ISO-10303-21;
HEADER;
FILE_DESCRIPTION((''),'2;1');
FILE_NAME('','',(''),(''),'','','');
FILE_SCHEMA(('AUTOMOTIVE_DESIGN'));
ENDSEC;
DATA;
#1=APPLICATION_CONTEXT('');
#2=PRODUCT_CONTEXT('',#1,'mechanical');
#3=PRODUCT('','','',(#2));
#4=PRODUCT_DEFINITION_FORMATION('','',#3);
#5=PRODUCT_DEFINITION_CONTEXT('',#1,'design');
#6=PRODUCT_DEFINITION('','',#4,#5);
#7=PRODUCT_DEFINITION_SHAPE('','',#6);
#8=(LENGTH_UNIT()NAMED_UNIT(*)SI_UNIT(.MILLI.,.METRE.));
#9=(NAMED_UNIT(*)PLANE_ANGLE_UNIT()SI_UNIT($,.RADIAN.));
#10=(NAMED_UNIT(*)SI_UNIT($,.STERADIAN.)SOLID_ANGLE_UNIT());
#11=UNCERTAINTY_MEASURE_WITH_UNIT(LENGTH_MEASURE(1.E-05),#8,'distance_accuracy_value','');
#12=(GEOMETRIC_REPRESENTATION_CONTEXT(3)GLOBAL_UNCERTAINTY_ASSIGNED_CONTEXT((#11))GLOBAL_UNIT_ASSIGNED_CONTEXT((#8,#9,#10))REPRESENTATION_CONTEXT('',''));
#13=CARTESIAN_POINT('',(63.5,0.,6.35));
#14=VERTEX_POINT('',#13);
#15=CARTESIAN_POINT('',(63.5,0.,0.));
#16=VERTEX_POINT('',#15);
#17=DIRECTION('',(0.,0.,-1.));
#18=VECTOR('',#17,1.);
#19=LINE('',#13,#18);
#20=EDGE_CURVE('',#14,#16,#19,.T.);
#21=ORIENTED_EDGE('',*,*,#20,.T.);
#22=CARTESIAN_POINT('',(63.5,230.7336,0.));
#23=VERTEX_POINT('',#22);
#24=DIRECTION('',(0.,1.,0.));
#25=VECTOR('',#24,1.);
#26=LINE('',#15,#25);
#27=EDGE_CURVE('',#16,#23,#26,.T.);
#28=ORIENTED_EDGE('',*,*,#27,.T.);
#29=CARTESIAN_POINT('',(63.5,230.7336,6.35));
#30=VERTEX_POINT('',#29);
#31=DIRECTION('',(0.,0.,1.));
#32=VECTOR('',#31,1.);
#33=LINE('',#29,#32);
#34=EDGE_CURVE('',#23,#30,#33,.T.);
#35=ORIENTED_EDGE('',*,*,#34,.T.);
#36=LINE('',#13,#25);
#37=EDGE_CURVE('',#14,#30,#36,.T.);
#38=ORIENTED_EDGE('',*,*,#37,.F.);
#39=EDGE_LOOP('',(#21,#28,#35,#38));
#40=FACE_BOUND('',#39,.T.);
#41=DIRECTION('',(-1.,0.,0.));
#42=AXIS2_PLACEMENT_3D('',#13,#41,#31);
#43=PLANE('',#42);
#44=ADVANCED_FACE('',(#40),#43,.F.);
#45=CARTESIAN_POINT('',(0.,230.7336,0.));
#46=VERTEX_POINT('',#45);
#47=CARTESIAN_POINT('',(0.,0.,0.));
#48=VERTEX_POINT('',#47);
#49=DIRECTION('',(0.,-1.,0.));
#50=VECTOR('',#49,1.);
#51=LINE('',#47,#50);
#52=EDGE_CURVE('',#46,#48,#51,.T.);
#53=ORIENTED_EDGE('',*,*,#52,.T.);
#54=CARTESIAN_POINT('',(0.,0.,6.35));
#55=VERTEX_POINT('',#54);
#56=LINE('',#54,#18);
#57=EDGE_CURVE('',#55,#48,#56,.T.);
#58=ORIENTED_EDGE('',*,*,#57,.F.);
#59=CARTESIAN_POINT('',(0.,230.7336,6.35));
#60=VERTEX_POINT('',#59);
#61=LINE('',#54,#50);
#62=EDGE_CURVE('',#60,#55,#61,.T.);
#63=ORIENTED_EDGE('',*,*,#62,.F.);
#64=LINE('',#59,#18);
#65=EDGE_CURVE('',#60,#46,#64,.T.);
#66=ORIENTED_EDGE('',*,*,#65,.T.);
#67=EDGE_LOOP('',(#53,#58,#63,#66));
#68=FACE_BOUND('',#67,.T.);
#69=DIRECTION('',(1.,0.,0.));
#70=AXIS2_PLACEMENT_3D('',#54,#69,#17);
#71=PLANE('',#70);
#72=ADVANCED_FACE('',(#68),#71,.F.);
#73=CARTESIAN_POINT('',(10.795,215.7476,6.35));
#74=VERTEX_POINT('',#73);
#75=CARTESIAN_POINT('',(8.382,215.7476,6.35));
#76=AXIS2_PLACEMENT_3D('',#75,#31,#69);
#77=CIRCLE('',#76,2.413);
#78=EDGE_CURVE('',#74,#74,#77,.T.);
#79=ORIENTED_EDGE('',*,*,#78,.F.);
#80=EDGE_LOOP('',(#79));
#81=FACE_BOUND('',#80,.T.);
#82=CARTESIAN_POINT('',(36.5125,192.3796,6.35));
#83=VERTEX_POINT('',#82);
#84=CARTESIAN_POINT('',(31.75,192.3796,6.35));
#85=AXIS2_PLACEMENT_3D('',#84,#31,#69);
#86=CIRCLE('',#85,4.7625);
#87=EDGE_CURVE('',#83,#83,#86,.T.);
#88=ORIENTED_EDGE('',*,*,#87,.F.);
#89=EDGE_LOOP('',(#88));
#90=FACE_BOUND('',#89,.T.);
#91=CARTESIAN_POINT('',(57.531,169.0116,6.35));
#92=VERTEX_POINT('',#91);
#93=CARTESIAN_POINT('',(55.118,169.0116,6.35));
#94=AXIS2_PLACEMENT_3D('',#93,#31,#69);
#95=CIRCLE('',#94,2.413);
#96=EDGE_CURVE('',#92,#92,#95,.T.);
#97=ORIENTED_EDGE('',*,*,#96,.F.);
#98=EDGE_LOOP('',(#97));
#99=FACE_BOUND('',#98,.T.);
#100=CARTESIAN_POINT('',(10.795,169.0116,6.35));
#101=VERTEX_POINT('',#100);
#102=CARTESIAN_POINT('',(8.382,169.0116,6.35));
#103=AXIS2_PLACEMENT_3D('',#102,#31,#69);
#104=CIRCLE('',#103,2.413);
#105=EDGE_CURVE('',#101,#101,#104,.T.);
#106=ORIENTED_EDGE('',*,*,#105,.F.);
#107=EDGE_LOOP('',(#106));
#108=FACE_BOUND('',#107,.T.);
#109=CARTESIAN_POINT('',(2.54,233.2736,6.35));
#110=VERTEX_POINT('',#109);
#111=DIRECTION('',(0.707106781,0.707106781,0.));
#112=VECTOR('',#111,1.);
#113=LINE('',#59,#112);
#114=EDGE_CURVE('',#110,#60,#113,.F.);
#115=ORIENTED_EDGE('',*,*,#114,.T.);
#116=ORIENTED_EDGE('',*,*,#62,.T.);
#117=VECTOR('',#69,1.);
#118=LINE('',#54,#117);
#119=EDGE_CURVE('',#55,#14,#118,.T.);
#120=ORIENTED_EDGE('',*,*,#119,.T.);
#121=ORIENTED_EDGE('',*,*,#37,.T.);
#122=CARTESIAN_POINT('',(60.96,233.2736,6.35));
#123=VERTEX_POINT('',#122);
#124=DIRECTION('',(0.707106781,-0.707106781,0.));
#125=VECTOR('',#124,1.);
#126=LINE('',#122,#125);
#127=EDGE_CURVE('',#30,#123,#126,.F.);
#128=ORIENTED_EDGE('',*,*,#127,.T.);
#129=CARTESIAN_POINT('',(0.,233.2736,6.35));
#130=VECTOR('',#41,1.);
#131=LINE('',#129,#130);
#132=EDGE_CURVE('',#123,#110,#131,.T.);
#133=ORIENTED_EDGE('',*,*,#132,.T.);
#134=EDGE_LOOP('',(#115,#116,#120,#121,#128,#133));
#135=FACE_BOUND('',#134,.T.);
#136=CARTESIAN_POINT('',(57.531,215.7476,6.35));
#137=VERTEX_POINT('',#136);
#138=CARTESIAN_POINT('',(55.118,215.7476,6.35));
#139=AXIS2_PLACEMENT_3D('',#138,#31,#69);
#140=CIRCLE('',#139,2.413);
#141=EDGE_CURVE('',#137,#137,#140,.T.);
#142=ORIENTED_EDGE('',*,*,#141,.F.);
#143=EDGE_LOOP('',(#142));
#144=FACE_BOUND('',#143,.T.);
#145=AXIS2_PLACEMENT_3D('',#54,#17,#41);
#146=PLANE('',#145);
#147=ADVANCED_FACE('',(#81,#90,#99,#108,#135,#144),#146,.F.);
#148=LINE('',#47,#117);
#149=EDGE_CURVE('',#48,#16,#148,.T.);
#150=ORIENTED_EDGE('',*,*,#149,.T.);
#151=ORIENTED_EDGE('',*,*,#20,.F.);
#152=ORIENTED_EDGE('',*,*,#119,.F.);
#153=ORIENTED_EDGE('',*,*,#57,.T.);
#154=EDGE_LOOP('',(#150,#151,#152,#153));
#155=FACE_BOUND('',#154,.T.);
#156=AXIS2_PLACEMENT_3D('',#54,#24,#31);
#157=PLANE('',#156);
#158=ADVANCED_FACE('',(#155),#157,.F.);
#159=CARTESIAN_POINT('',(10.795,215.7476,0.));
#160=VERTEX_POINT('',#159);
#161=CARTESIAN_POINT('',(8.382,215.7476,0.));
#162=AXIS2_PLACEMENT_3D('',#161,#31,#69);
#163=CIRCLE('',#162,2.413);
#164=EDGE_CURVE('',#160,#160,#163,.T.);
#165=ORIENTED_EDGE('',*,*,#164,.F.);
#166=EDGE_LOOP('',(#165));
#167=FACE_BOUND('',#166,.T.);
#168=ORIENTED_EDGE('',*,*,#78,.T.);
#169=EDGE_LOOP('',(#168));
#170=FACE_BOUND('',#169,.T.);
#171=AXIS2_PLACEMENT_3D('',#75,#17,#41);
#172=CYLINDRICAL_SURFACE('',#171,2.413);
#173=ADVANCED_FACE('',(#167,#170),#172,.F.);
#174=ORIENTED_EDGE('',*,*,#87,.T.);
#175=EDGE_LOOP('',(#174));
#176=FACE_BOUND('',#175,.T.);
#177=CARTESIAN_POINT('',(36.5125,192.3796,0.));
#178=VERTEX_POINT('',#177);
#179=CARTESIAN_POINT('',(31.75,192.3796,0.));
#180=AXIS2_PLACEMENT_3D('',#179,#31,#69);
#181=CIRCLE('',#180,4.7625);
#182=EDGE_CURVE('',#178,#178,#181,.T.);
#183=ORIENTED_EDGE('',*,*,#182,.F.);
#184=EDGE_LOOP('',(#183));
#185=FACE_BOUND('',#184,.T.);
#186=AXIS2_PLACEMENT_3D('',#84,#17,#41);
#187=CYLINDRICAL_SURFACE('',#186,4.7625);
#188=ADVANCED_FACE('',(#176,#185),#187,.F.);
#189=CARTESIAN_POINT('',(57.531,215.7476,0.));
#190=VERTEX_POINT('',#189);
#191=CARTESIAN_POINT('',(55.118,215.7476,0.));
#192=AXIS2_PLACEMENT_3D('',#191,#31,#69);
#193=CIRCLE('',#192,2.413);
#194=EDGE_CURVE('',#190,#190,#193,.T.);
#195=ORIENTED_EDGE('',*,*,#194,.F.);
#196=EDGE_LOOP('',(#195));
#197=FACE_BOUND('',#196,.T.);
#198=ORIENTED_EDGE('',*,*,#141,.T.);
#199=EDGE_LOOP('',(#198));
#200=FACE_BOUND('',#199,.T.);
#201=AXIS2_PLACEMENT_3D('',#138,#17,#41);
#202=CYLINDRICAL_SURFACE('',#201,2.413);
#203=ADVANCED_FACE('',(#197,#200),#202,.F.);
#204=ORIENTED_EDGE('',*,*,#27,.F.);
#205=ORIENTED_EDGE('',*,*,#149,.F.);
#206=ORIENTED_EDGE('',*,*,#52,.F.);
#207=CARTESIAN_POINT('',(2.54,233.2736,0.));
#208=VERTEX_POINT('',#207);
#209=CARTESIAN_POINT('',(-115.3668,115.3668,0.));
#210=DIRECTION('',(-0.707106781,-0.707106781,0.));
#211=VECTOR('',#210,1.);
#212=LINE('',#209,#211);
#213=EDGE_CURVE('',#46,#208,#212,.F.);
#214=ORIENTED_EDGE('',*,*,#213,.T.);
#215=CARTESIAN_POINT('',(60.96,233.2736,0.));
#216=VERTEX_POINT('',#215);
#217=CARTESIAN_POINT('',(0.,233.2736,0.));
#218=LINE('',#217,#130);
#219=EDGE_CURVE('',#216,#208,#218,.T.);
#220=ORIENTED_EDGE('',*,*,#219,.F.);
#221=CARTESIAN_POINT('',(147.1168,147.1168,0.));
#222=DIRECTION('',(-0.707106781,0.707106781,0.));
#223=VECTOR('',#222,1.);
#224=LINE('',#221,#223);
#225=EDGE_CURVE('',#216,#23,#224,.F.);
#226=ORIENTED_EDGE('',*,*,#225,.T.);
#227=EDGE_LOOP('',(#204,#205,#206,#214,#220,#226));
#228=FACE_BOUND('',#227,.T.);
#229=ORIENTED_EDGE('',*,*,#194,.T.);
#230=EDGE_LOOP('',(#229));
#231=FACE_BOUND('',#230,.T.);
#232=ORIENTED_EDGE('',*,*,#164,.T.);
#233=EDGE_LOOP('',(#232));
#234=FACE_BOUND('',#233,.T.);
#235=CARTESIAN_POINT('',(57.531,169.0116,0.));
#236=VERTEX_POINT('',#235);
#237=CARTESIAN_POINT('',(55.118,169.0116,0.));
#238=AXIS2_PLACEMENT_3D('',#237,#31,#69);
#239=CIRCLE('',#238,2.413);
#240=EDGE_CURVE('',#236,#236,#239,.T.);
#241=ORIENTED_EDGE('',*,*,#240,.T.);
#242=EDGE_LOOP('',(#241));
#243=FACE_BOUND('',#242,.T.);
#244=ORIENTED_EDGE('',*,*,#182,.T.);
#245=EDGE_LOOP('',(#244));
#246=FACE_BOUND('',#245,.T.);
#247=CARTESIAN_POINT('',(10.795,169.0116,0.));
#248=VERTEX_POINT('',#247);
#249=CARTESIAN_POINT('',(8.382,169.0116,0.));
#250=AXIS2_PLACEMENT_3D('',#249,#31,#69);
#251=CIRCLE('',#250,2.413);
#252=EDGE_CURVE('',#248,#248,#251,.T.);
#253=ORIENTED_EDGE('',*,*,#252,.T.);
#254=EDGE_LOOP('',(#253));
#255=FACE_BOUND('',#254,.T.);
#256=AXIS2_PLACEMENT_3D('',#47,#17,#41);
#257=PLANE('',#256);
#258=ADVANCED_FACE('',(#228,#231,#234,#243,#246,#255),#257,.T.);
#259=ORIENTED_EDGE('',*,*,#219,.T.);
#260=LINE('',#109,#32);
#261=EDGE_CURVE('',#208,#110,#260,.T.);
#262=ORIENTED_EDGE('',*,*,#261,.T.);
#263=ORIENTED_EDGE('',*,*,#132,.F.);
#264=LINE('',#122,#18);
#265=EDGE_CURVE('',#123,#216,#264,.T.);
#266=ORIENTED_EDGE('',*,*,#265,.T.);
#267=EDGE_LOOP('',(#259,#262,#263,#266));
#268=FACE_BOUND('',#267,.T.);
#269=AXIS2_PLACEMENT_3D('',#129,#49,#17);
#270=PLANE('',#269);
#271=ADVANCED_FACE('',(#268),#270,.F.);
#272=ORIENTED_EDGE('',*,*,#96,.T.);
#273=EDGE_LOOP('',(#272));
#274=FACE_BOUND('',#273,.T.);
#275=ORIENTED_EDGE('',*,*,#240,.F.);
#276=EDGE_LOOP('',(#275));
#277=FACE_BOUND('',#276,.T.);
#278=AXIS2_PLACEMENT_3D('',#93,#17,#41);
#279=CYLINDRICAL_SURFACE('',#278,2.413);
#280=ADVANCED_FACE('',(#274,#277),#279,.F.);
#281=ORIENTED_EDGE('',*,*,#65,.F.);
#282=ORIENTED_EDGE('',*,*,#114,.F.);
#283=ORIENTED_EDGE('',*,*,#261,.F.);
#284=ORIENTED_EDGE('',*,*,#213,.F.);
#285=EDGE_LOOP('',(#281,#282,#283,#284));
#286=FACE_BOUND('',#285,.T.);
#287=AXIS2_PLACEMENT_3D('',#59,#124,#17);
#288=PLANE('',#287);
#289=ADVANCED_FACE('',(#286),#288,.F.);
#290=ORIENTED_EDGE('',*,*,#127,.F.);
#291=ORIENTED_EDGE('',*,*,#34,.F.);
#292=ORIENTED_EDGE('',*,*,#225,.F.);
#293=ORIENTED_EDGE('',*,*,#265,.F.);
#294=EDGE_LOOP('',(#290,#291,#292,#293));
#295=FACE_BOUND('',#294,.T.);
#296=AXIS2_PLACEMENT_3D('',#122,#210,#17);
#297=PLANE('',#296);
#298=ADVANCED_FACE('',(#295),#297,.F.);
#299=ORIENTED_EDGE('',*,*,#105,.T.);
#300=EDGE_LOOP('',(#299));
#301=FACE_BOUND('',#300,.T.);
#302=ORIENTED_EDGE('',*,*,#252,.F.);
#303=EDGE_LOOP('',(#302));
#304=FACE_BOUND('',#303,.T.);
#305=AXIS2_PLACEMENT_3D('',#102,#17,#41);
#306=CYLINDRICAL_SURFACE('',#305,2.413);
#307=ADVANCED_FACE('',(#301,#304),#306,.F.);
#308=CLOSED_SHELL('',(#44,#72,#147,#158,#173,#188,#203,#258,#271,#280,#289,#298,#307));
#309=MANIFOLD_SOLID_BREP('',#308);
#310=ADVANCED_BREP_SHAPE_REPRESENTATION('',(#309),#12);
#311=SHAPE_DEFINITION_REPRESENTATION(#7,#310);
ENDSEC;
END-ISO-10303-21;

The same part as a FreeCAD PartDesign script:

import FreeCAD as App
import Part
import Sketcher
Q = App.Units.Quantity


def edges_at(feature, points):
    """Names of the edges that pass closest to the given points."""
    edges = feature.Shape.Edges
    near = lambda p: min(range(len(edges)), key=lambda i: edges[i].distToShape(Part.Vertex(*p))[0])
    return sorted({f"Edge{near(p) + 1}" for p in points})

doc = App.newDocument("Part")
body = doc.addObject("PartDesign::Body", "Body")

# Sketch on XY plane
sketch1 = doc.addObject("Sketcher::SketchObject", "Sketch")
body.addObject(sketch1)
sketch1.AttachmentSupport = (doc.XY_Plane, [""])
sketch1.MapMode = "FlatFace"
sketch1.addGeometry([
    Part.LineSegment(App.Vector(0, 233.3, 0), App.Vector(0, 0, 0)),  # 0
    Part.LineSegment(App.Vector(0, 0, 0), App.Vector(63.5, 0, 0)),  # 1
    Part.LineSegment(App.Vector(63.5, 0, 0), App.Vector(63.5, 233.3, 0)),  # 2
    Part.LineSegment(App.Vector(63.5, 233.3, 0), App.Vector(0, 233.3, 0)),  # 3
    Part.Circle(App.Vector(8.4, 169, 0), App.Vector(0, 0, 1), 2.4),  # 4
    Part.Circle(App.Vector(55.1, 169, 0), App.Vector(0, 0, 1), 2.4),  # 5
    Part.Circle(App.Vector(8.4, 215.7, 0), App.Vector(0, 0, 1), 2.4),  # 6
    Part.Circle(App.Vector(31.8, 192.4, 0), App.Vector(0, 0, 1), 4.8),  # 7
    Part.Circle(App.Vector(55.1, 215.7, 0), App.Vector(0, 0, 1), 2.4),  # 8
], False)
sketch1.addConstraint([
    Sketcher.Constraint("Coincident", 0, 2, 1, 1),
    Sketcher.Constraint("Coincident", 1, 2, 2, 1),
    Sketcher.Constraint("Coincident", 2, 2, 3, 1),
    Sketcher.Constraint("Coincident", 3, 2, 0, 1),
    Sketcher.Constraint("Vertical", 0),
    Sketcher.Constraint("Horizontal", 1),
    Sketcher.Constraint("Vertical", 2),
    Sketcher.Constraint("Horizontal", 3),
    Sketcher.Constraint("Coincident", 0, 2, -1, 1),
    Sketcher.Constraint("Equal", 4, 5),
    Sketcher.Constraint("Equal", 5, 6),
    Sketcher.Constraint("Equal", 6, 8),
    Sketcher.Constraint("Horizontal", 4, 3, 5, 3),
    Sketcher.Constraint("Horizontal", 6, 3, 8, 3),
    Sketcher.Constraint("Vertical", 4, 3, 6, 3),
    Sketcher.Constraint("Vertical", 5, 3, 8, 3),
    Sketcher.Constraint("Diameter", 4, Q("0.19 in")),
    Sketcher.Constraint("Diameter", 7, Q("0.375 in")),
    Sketcher.Constraint("DistanceX", 1, 1, 1, 2, Q("2.5 in")),
    Sketcher.Constraint("DistanceY", 0, 2, 0, 1, Q("9.184 in")),
    Sketcher.Constraint("DistanceX", -1, 1, 4, 3, Q("0.33 in")),
    Sketcher.Constraint("DistanceX", -1, 1, 5, 3, Q("2.17 in")),
    Sketcher.Constraint("DistanceX", -1, 1, 7, 3, Q("1.25 in")),
    Sketcher.Constraint("DistanceY", 4, 3, 6, 3, Q("1.84 in")),
    Sketcher.Constraint("DistanceY", 7, 3, 6, 3, Q("0.92 in")),
    Sketcher.Constraint("DistanceY", 8, 3, 2, 2, Q("0.69 in")),
])
pad1 = doc.addObject("PartDesign::Pad", "Pad")
body.addObject(pad1)
pad1.Profile = sketch1
pad1.Length = Q("0.25 in")
doc.recompute()

chamfer = doc.addObject("PartDesign::Chamfer", "Chamfer")
body.addObject(chamfer)
chamfer.Base = (pad1, edges_at(pad1, [(0, 233.274, 3.175), (63.5, 233.274, 3.175)]))
chamfer.Size = Q("0.1 in")

doc.recompute()
